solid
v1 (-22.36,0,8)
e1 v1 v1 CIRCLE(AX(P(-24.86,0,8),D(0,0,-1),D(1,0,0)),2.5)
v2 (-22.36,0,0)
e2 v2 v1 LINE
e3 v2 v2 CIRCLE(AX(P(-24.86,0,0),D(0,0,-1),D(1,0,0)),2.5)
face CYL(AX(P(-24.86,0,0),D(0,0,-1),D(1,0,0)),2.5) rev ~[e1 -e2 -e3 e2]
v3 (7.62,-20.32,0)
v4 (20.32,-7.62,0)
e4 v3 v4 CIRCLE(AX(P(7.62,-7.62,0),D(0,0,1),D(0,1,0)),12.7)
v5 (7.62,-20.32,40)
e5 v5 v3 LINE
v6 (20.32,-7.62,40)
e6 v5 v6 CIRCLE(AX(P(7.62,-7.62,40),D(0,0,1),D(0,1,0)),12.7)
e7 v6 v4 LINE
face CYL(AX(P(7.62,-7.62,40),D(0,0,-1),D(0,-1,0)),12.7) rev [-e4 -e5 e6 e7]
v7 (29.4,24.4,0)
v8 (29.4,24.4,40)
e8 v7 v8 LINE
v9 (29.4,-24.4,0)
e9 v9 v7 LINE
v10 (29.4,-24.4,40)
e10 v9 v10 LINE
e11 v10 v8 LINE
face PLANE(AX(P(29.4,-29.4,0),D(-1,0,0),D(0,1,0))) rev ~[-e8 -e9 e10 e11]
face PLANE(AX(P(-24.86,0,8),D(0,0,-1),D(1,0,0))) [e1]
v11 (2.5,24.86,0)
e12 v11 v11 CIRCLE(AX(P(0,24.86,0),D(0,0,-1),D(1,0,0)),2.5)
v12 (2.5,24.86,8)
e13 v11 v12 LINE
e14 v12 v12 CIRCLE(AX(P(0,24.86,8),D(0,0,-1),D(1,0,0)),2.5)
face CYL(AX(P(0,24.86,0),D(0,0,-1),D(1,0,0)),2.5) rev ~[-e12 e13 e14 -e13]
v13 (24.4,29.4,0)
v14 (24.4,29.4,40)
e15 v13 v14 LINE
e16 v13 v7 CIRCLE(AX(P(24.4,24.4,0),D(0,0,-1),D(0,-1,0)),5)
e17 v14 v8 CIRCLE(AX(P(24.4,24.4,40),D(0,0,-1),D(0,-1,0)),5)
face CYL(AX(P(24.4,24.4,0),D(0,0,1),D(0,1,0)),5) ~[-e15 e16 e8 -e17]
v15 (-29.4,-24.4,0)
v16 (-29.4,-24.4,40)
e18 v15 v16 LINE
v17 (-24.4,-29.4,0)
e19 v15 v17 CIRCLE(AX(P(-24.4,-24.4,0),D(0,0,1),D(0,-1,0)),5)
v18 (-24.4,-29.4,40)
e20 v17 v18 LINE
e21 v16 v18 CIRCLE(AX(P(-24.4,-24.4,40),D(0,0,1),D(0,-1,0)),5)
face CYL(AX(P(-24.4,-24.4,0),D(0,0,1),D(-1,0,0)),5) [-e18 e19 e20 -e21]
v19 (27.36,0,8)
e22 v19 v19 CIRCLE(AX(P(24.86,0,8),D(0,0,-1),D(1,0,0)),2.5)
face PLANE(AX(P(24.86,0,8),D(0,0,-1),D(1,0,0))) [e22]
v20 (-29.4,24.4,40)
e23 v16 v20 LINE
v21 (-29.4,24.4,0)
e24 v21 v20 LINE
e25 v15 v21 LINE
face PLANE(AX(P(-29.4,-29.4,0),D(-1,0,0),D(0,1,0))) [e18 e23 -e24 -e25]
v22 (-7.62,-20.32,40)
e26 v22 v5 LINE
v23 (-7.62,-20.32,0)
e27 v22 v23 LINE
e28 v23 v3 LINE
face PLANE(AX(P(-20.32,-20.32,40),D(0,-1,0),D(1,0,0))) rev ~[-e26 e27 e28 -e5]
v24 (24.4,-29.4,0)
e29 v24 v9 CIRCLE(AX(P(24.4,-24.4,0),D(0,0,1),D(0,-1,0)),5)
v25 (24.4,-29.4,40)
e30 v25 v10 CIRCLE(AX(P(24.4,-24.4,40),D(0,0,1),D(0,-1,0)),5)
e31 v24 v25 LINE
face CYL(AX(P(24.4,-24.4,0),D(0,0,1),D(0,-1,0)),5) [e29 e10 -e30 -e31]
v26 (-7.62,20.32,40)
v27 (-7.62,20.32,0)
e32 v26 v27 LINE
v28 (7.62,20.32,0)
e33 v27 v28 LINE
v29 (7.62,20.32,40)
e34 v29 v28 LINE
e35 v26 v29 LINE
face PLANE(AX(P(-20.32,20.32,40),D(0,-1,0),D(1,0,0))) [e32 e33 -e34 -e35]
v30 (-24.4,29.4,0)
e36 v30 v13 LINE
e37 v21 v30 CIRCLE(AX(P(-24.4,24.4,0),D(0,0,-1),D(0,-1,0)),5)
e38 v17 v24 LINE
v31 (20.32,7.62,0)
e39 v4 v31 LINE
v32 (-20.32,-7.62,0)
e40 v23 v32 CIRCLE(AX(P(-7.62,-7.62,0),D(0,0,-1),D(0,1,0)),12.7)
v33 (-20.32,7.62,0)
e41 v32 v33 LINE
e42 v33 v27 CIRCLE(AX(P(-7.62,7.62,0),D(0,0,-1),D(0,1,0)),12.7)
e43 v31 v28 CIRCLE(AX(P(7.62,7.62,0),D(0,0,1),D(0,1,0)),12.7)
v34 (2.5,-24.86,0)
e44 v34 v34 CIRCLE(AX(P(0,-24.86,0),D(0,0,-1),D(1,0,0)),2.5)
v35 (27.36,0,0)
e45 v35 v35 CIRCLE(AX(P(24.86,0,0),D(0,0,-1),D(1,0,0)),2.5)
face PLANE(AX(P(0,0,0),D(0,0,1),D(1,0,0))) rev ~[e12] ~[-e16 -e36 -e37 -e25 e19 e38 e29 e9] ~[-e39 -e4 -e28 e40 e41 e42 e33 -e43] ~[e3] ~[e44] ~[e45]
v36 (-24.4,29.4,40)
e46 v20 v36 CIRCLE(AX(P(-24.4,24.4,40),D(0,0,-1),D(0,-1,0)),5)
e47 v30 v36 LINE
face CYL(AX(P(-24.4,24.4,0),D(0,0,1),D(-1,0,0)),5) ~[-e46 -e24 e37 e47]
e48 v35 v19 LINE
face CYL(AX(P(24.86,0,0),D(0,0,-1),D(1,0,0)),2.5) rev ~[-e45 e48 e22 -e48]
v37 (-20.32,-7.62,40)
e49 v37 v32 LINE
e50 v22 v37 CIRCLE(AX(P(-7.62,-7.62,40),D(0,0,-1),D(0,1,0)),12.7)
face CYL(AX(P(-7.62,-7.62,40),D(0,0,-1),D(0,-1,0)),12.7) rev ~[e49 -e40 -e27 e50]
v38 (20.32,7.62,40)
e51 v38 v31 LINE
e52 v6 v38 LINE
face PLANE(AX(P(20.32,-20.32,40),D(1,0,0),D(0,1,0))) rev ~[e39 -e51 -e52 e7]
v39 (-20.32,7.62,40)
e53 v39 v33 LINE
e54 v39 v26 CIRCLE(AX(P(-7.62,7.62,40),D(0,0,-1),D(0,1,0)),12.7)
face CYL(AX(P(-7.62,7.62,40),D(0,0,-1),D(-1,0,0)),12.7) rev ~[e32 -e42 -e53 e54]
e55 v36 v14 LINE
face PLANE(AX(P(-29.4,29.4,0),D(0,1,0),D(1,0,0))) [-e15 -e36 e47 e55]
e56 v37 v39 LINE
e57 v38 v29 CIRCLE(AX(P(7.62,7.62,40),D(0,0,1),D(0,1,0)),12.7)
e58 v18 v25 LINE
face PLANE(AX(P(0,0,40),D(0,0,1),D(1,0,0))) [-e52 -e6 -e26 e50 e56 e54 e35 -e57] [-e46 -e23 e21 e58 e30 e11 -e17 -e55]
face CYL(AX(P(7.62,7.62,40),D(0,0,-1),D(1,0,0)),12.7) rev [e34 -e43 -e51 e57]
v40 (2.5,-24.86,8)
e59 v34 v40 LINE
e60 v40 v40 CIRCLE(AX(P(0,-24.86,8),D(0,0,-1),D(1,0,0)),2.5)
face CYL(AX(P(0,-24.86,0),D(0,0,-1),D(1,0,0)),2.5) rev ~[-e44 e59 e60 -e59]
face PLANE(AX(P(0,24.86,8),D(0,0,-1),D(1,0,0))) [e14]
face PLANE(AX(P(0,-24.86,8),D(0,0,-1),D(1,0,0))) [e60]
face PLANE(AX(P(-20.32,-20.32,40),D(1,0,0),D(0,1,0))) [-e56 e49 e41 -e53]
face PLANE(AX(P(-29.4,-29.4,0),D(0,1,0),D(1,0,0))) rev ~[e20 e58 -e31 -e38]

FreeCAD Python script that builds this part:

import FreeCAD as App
import Part
import Sketcher


def edges_at(feature, points):
    """Names of the edges that pass closest to the given points."""
    edges = feature.Shape.Edges
    near = lambda p: min(range(len(edges)), key=lambda i: edges[i].distToShape(Part.Vertex(*p))[0])
    return sorted({f"Edge{near(p) + 1}" for p in points})

doc = App.newDocument("Part")
params = doc.addObject("Spreadsheet::Sheet", "Params")
for row, (alias, value) in enumerate([
    ("sketch1_width", "58.8 mm"),
    ("pad1_length", "40 mm"),
    ("sketch2_width", "40.64 mm"),
    ("sketch3_diameter", "5 mm"),
    ("pocket2_length", "8 mm"),
    ("fillet_radius", "12.7 mm"),
    ("fillet2_radius", "5 mm"),
], start=1):
    params.set(f"A{row}", alias)
    params.set(f"B{row}", "=" + value)
    params.setAlias(f"B{row}", alias)

body = doc.addObject("PartDesign::Body", "Body")

# Sketch on XY plane
sketch1 = body.newObject("Sketcher::SketchObject", "Sketch")
sketch1.AttachmentSupport = (doc.getObject("XY_Plane"), [""])
sketch1.MapMode = "FlatFace"
sketch1.addGeometry(Part.LineSegment(App.Vector(-29, 29, 0), App.Vector(-29, -29, 0)), False)
sketch1.addGeometry(Part.LineSegment(App.Vector(-29, -29, 0), App.Vector(29, -29, 0)), False)
sketch1.addGeometry(Part.LineSegment(App.Vector(29, -29, 0), App.Vector(29, 29, 0)), False)
sketch1.addGeometry(Part.LineSegment(App.Vector(29, 29, 0), App.Vector(-29, 29, 0)), False)
sketch1.addConstraint(Sketcher.Constraint("Coincident", 0, 2, 1, 1))
sketch1.addConstraint(Sketcher.Constraint("Coincident", 1, 2, 2, 1))
sketch1.addConstraint(Sketcher.Constraint("Coincident", 2, 2, 3, 1))
sketch1.addConstraint(Sketcher.Constraint("Coincident", 3, 2, 0, 1))
sketch1.addConstraint(Sketcher.Constraint("Vertical", 0))
sketch1.addConstraint(Sketcher.Constraint("Horizontal", 1))
sketch1.addConstraint(Sketcher.Constraint("Vertical", 2))
sketch1.addConstraint(Sketcher.Constraint("Horizontal", 3))
sketch1.addConstraint(Sketcher.Constraint("Symmetric", 0, 2, 2, 2, -1, 1))
sketch1.addConstraint(Sketcher.Constraint("Equal", 3, 0))
sketch1.addConstraint(Sketcher.Constraint("DistanceX", 1, 1, 1, 2, 58.8))
sketch1.setExpression("Constraints[10]", "Params.sketch1_width")
pad1 = body.newObject("PartDesign::Pad", "Pad")
pad1.Profile = sketch1
pad1.setExpression("Length", "Params.pad1_length")

# Sketch on XY plane
sketch2 = body.newObject("Sketcher::SketchObject", "Sketch001")
sketch2.AttachmentSupport = (doc.getObject("XY_Plane"), [""])
sketch2.MapMode = "FlatFace"
sketch2.AttachmentOffset = App.Placement(App.Vector(0, 0, 40), App.Rotation())
sketch2.addGeometry(Part.LineSegment(App.Vector(-20, 20, 0), App.Vector(-20, -20, 0)), False)
sketch2.addGeometry(Part.LineSegment(App.Vector(-20, -20, 0), App.Vector(20, -20, 0)), False)
sketch2.addGeometry(Part.LineSegment(App.Vector(20, -20, 0), App.Vector(20, 20, 0)), False)
sketch2.addGeometry(Part.LineSegment(App.Vector(20, 20, 0), App.Vector(-20, 20, 0)), False)
sketch2.addConstraint(Sketcher.Constraint("Coincident", 0, 2, 1, 1))
sketch2.addConstraint(Sketcher.Constraint("Coincident", 1, 2, 2, 1))
sketch2.addConstraint(Sketcher.Constraint("Coincident", 2, 2, 3, 1))
sketch2.addConstraint(Sketcher.Constraint("Coincident", 3, 2, 0, 1))
sketch2.addConstraint(Sketcher.Constraint("Vertical", 0))
sketch2.addConstraint(Sketcher.Constraint("Horizontal", 1))
sketch2.addConstraint(Sketcher.Constraint("Vertical", 2))
sketch2.addConstraint(Sketcher.Constraint("Horizontal", 3))
sketch2.addConstraint(Sketcher.Constraint("Symmetric", 0, 2, 2, 2, -1, 1))
sketch2.addConstraint(Sketcher.Constraint("Equal", 3, 0))
sketch2.addConstraint(Sketcher.Constraint("DistanceX", 1, 1, 1, 2, 40.64))
sketch2.setExpression("Constraints[10]", "Params.sketch2_width")
pocket1 = body.newObject("PartDesign::Pocket", "Pocket")
pocket1.Profile = sketch2
pocket1.Type = "ThroughAll"

# Sketch on XY plane
sketch3 = body.newObject("Sketcher::SketchObject", "Sketch002")
sketch3.AttachmentSupport = (doc.getObject("XY_Plane"), [""])
sketch3.MapMode = "FlatFace"
sketch3.addGeometry(Part.Circle(App.Vector(-24.9, 0, 0), App.Vector(0, 0, 1), 2.5), False)
sketch3.addGeometry(Part.Circle(App.Vector(0, -24.9, 0), App.Vector(0, 0, 1), 2.5), False)
sketch3.addGeometry(Part.Circle(App.Vector(24.9, 0, 0), App.Vector(0, 0, 1), 2.5), False)
sketch3.addGeometry(Part.Circle(App.Vector(0, 24.9, 0), App.Vector(0, 0, 1), 2.5), False)
sketch3.addConstraint(Sketcher.Constraint("Equal", 0, 1))
sketch3.addConstraint(Sketcher.Constraint("Equal", 1, 2))
sketch3.addConstraint(Sketcher.Constraint("Equal", 2, 3))
sketch3.addConstraint(Sketcher.Constraint("Symmetric", 0, 3, 2, 3, -1, 1))
sketch3.addConstraint(Sketcher.Constraint("Symmetric", 1, 3, 3, 3, -1, 1))
sketch3.addConstraint(Sketcher.Constraint("PointOnObject", 0, 3, -1))
sketch3.addConstraint(Sketcher.Constraint("PointOnObject", 1, 3, -2))
sketch3.addConstraint(Sketcher.Constraint("Diameter", 0, 5.0))
sketch3.addConstraint(Sketcher.Constraint("DistanceX", 0, 3, -1, 1, 24.86))
sketch3.addConstraint(Sketcher.Constraint("DistanceY", 1, 3, -1, 1, 24.86))
sketch3.setExpression("Constraints[7]", "Params.sketch3_diameter")
pocket2 = body.newObject("PartDesign::Pocket", "Pocket001")
pocket2.Profile = sketch3
pocket2.setExpression("Length", "Params.pocket2_length")
pocket2.Reversed = True
doc.recompute()

fillet = body.newObject("PartDesign::Fillet", "Fillet")
fillet.Base = (pocket2, edges_at(pocket2, [
    (-20.32, 20.32, 20),
    (20.32, 20.32, 20),
    (20.32, -20.32, 20),
    (-20.32, -20.32, 20),
]))
fillet.setExpression("Radius", "Params.fillet_radius")
doc.recompute()

fillet2 = body.newObject("PartDesign::Fillet", "Fillet001")
fillet2.Base = (fillet, edges_at(fillet, [
    (-29.4, -29.4, 20),
    (-29.4, 29.4, 20),
    (29.4, -29.4, 20),
    (29.4, 29.4, 20),
]))
fillet2.setExpression("Radius", "Params.fillet2_radius")

doc.recompute()
